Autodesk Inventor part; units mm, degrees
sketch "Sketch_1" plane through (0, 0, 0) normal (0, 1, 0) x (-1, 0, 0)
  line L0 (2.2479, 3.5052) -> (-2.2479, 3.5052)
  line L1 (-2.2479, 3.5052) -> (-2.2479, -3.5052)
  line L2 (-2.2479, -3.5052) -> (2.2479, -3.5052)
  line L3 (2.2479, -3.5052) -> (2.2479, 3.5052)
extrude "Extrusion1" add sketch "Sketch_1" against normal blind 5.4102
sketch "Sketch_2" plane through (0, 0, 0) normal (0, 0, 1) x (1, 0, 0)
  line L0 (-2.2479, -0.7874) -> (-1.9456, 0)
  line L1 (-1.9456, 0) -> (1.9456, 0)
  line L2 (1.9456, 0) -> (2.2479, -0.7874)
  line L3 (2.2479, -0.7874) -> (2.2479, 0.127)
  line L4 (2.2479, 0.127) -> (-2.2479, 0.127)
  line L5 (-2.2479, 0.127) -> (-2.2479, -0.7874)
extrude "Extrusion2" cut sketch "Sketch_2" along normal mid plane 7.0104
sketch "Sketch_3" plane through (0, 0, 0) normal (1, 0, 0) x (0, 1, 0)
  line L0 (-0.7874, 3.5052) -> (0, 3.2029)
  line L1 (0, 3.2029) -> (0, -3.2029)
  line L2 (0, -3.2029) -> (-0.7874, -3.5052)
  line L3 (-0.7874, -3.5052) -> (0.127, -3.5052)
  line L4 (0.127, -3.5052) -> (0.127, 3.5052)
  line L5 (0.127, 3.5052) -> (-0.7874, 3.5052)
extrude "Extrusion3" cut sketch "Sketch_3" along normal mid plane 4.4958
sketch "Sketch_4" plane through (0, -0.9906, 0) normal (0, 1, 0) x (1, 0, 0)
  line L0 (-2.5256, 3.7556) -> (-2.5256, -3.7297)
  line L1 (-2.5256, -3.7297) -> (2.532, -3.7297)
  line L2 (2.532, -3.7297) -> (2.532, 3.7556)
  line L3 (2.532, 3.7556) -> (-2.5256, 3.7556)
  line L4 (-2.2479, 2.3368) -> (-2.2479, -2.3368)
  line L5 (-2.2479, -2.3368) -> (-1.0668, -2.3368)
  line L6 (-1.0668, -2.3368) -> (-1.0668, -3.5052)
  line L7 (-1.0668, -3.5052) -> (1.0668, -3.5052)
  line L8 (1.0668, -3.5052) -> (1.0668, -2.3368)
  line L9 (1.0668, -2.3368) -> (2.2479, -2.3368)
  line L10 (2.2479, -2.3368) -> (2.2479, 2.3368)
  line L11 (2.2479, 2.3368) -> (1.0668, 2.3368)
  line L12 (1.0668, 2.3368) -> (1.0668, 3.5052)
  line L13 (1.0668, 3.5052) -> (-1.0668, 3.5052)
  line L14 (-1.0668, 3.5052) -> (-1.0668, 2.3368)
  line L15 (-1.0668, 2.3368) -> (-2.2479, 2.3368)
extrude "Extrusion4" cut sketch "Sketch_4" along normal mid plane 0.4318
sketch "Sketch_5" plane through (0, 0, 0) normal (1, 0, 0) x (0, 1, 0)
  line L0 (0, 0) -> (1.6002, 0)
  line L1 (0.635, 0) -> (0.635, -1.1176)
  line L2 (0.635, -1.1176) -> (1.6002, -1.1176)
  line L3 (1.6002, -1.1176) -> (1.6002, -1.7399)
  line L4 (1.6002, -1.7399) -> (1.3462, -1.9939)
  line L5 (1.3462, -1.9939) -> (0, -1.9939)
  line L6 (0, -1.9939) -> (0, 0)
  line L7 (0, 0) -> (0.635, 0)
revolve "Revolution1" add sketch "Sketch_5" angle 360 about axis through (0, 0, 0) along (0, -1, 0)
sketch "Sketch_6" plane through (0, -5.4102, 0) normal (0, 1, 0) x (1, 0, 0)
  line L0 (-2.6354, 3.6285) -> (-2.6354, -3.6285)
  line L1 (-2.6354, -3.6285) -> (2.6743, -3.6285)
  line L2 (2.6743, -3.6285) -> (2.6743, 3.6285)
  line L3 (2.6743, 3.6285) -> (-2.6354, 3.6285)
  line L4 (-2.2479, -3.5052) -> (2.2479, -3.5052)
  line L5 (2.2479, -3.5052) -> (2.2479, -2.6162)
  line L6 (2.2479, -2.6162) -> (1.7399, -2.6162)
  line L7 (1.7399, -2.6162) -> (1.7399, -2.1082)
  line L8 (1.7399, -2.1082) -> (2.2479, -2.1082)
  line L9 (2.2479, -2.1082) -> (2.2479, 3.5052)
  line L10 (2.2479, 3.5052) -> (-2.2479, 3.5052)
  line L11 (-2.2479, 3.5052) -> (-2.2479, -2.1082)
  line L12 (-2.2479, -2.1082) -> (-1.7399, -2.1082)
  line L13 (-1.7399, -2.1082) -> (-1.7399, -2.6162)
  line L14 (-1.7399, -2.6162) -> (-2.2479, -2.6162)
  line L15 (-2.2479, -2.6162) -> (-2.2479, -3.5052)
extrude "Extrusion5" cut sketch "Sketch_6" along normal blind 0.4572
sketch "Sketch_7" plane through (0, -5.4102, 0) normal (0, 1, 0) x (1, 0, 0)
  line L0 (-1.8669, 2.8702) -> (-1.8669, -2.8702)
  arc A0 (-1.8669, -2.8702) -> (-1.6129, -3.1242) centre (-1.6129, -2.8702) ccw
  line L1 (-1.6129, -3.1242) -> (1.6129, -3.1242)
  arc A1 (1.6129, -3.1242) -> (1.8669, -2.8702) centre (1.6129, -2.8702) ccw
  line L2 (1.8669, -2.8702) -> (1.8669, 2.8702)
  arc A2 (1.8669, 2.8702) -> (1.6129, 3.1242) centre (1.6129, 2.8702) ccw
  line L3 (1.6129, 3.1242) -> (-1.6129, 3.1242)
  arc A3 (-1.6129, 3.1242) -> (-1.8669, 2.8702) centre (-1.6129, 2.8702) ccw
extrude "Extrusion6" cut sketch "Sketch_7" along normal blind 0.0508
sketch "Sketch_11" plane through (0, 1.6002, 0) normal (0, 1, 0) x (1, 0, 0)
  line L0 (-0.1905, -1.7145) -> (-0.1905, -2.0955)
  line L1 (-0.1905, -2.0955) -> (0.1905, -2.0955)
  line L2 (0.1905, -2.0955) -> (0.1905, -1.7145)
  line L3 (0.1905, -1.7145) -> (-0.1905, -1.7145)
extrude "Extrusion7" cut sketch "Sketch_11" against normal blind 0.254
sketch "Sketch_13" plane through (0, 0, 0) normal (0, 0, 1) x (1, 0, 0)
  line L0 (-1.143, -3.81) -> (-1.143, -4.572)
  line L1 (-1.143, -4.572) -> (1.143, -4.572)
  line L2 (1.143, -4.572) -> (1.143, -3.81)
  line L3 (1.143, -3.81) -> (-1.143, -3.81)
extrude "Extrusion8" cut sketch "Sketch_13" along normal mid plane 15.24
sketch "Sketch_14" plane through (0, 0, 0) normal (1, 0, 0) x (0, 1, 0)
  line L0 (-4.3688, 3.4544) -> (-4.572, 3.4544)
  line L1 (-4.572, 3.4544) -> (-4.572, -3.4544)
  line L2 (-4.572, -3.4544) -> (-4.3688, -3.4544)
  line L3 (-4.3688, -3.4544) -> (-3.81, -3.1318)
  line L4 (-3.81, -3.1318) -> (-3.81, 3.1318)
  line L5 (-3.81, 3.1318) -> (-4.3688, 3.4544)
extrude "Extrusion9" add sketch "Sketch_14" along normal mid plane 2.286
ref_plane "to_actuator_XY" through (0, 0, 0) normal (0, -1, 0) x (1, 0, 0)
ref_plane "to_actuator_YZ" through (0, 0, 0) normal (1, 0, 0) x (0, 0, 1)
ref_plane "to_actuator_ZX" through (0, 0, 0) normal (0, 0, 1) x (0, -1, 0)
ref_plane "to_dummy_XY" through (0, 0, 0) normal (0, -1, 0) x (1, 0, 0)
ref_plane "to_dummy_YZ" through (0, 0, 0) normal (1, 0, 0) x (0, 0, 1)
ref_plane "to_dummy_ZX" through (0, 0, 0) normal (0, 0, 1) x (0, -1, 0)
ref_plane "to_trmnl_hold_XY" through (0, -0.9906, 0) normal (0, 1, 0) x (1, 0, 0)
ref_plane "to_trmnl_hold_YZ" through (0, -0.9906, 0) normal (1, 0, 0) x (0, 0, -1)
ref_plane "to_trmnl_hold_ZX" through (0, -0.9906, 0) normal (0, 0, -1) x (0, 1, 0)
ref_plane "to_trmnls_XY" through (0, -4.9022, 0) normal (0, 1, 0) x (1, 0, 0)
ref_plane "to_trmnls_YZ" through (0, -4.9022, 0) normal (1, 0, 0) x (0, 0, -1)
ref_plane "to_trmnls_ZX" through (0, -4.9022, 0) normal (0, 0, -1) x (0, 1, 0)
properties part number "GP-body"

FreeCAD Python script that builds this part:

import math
import FreeCAD as App
import Part
import Sketcher

V = App.Vector
Q = App.Units.Quantity

doc = App.newDocument("Part")
body = doc.addObject("PartDesign::Body", "Body")

sketch1 = body.newObject("Sketcher::SketchObject", "Sketch")
sketch1.AttachmentSupport = (doc.getObject("XZ_Plane"), [""])
sketch1.MapMode = "FlatFace"
sketch1.addGeometry([
    Part.LineSegment(V(-2.2, -3.5, 0), V(-2.2, 3.5, 0)),
    Part.LineSegment(V(-2.2, 3.5, 0), V(2.2, 3.5, 0)),
    Part.LineSegment(V(2.2, 3.5, 0), V(2.2, -3.5, 0)),
    Part.LineSegment(V(2.2, -3.5, 0), V(-2.2, -3.5, 0)),
], False)
sketch1.addConstraint([
    Sketcher.Constraint("Coincident", 0, 2, 1, 1),
    Sketcher.Constraint("Coincident", 1, 2, 2, 1),
    Sketcher.Constraint("Coincident", 2, 2, 3, 1),
    Sketcher.Constraint("Coincident", 3, 2, 0, 1),
    Sketcher.Constraint("Vertical", 0),
    Sketcher.Constraint("Horizontal", 1),
    Sketcher.Constraint("Vertical", 2),
    Sketcher.Constraint("Horizontal", 3),
    Sketcher.Constraint("Symmetric", 0, 2, 2, 2, -1, 1),
    Sketcher.Constraint("DistanceX", 1, 1, 1, 2, Q("0.177 in")),
    Sketcher.Constraint("DistanceY", 0, 1, 0, 2, Q("0.276 in")),
])
pad1 = body.newObject("PartDesign::Pad", "Pad")
pad1.Profile = sketch1
pad1.Length = Q("0.213 in")

sketch2 = body.newObject("Sketcher::SketchObject", "Sketch001")
sketch2.AttachmentSupport = (doc.getObject("XY_Plane"), [""])
sketch2.MapMode = "FlatFace"
sketch2.addGeometry([
    Part.LineSegment(V(-2.2, 0.1, 0), V(-2.2, -0.8, 0)),
    Part.LineSegment(V(-2.2, -0.8, 0), V(-1.9, 0, 0)),
    Part.LineSegment(V(-1.9, 0, 0), V(1.9, 0, 0)),
    Part.LineSegment(V(1.9, 0, 0), V(2.2, -0.8, 0)),
    Part.LineSegment(V(2.2, -0.8, 0), V(2.2, 0.1, 0)),
    Part.LineSegment(V(2.2, 0.1, 0), V(-2.2, 0.1, 0)),
], False)
sketch2.addConstraint([
    Sketcher.Constraint("Coincident", 0, 2, 1, 1),
    Sketcher.Constraint("Coincident", 1, 2, 2, 1),
    Sketcher.Constraint("Coincident", 2, 2, 3, 1),
    Sketcher.Constraint("Coincident", 3, 2, 4, 1),
    Sketcher.Constraint("Coincident", 4, 2, 5, 1),
    Sketcher.Constraint("Coincident", 5, 2, 0, 1),
    Sketcher.Constraint("Vertical", 0),
    Sketcher.Constraint("Horizontal", 2),
    Sketcher.Constraint("Vertical", 4),
    Sketcher.Constraint("Horizontal", 5),
    Sketcher.Constraint("Symmetric", 1, 2, 2, 2, -1, 1),
    Sketcher.Constraint("Symmetric", 0, 2, 3, 2, -2),
    Sketcher.Constraint("DistanceX", 5, 2, 5, 1, Q("0.177 in")),
    Sketcher.Constraint("DistanceY", 0, 2, 0, 1, Q("0.036 in")),
    Sketcher.Constraint("DistanceX", 2, 1, 2, 2, Q("0.1532 in")),
    Sketcher.Constraint("DistanceY", 0, 2, -1, 1, Q("0.031 in")),
])
pocket1 = body.newObject("PartDesign::Pocket", "Pocket")
pocket1.Profile = sketch2
pocket1.Length = Q("0.276 in")
pocket1.Midplane = True

sketch3 = body.newObject("Sketcher::SketchObject", "Sketch002")
sketch3.AttachmentSupport = (doc.getObject("YZ_Plane"), [""])
sketch3.MapMode = "FlatFace"
sketch3.addGeometry([
    Part.LineSegment(V(0.1, 3.5, 0), V(-0.8, 3.5, 0)),
    Part.LineSegment(V(-0.8, 3.5, 0), V(0, 3.2, 0)),
    Part.LineSegment(V(0, 3.2, 0), V(0, -3.2, 0)),
    Part.LineSegment(V(0, -3.2, 0), V(-0.8, -3.5, 0)),
    Part.LineSegment(V(-0.8, -3.5, 0), V(0.1, -3.5, 0)),
    Part.LineSegment(V(0.1, -3.5, 0), V(0.1, 3.5, 0)),
], False)
sketch3.addConstraint([
    Sketcher.Constraint("Coincident", 0, 2, 1, 1),
    Sketcher.Constraint("Coincident", 1, 2, 2, 1),
    Sketcher.Constraint("Coincident", 2, 2, 3, 1),
    Sketcher.Constraint("Coincident", 3, 2, 4, 1),
    Sketcher.Constraint("Coincident", 4, 2, 5, 1),
    Sketcher.Constraint("Coincident", 5, 2, 0, 1),
    Sketcher.Constraint("Horizontal", 0),
    Sketcher.Constraint("Vertical", 2),
    Sketcher.Constraint("Horizontal", 4),
    Sketcher.Constraint("Vertical", 5),
    Sketcher.Constraint("Symmetric", 1, 2, 2, 2, -1, 1),
    Sketcher.Constraint("Symmetric", 0, 2, 3, 2, -1),
    Sketcher.Constraint("DistanceX", 0, 2, 0, 1, Q("0.036 in")),
    Sketcher.Constraint("DistanceY", 5, 1, 5, 2, Q("0.276 in")),
    Sketcher.Constraint("DistanceY", 2, 2, 2, 1, Q("0.2522 in")),
    Sketcher.Constraint("DistanceX", 0, 2, -1, 1, Q("0.031 in")),
])
pocket2 = body.newObject("PartDesign::Pocket", "Pocket001")
pocket2.Profile = sketch3
pocket2.Length = Q("0.177 in")
pocket2.Midplane = True

sketch4 = body.newObject("Sketcher::SketchObject", "Sketch003")
sketch4.AttachmentSupport = (doc.getObject("XZ_Plane"), [""])
sketch4.MapMode = "FlatFace"
sketch4.AttachmentOffset = App.Placement(V(0, 0, 0.039 * 25.4), App.Rotation())
sketch4.addGeometry([
    Part.LineSegment(V(2.5, -3.8, 0), V(-2.5, -3.8, 0)),
    Part.LineSegment(V(-2.5, -3.8, 0), V(-2.5, 3.7, 0)),
    Part.LineSegment(V(-2.5, 3.7, 0), V(2.5, 3.7, 0)),
    Part.LineSegment(V(2.5, 3.7, 0), V(2.5, -3.8, 0)),
    Part.LineSegment(V(-2.2, 2.3, 0), V(-2.2, -2.3, 0)),
    Part.LineSegment(V(-2.2, -2.3, 0), V(-1.1, -2.3, 0)),
    Part.LineSegment(V(-1.1, -2.3, 0), V(-1.1, -3.5, 0)),
    Part.LineSegment(V(-1.1, -3.5, 0), V(1.1, -3.5, 0)),
    Part.LineSegment(V(1.1, -3.5, 0), V(1.1, -2.3, 0)),
    Part.LineSegment(V(1.1, -2.3, 0), V(2.2, -2.3, 0)),
    Part.LineSegment(V(2.2, -2.3, 0), V(2.2, 2.3, 0)),
    Part.LineSegment(V(2.2, 2.3, 0), V(1.1, 2.3, 0)),
    Part.LineSegment(V(1.1, 2.3, 0), V(1.1, 3.5, 0)),
    Part.LineSegment(V(1.1, 3.5, 0), V(-1.1, 3.5, 0)),
    Part.LineSegment(V(-1.1, 3.5, 0), V(-1.1, 2.3, 0)),
    Part.LineSegment(V(-1.1, 2.3, 0), V(-2.2, 2.3, 0)),
], False)
sketch4.addConstraint([
    Sketcher.Constraint("Coincident", 0, 2, 1, 1),
    Sketcher.Constraint("Coincident", 1, 2, 2, 1),
    Sketcher.Constraint("Coincident", 2, 2, 3, 1),
    Sketcher.Constraint("Coincident", 3, 2, 0, 1),
    Sketcher.Constraint("Coincident", 4, 2, 5, 1),
    Sketcher.Constraint("Coincident", 5, 2, 6, 1),
    Sketcher.Constraint("Coincident", 6, 2, 7, 1),
    Sketcher.Constraint("Coincident", 7, 2, 8, 1),
    Sketcher.Constraint("Coincident", 8, 2, 9, 1),
    Sketcher.Constraint("Coincident", 9, 2, 10, 1),
    Sketcher.Constraint("Coincident", 10, 2, 11, 1),
    Sketcher.Constraint("Coincident", 11, 2, 12, 1),
    Sketcher.Constraint("Coincident", 12, 2, 13, 1),
    Sketcher.Constraint("Coincident", 13, 2, 14, 1),
    Sketcher.Constraint("Coincident", 14, 2, 15, 1),
    Sketcher.Constraint("Coincident", 15, 2, 4, 1),
    Sketcher.Constraint("Horizontal", 0),
    Sketcher.Constraint("Vertical", 1),
    Sketcher.Constraint("Horizontal", 2),
    Sketcher.Constraint("Vertical", 3),
    Sketcher.Constraint("Vertical", 4),
    Sketcher.Constraint("Horizontal", 5),
    Sketcher.Constraint("Vertical", 6),
    Sketcher.Constraint("Horizontal", 7),
    Sketcher.Constraint("Vertical", 8),
    Sketcher.Constraint("Horizontal", 9),
    Sketcher.Constraint("Vertical", 10),
    Sketcher.Constraint("Horizontal", 11),
    Sketcher.Constraint("Vertical", 12),
    Sketcher.Constraint("Horizontal", 13),
    Sketcher.Constraint("Vertical", 14),
    Sketcher.Constraint("Horizontal", 15),
    Sketcher.Constraint("Symmetric", 4, 2, 10, 2, -1, 1),
    Sketcher.Constraint("Symmetric", 6, 2, 12, 2, -1, 1),
    Sketcher.Constraint("Symmetric", 8, 2, 14, 2, -1, 1),
    Sketcher.Constraint("Symmetric", 5, 2, 8, 2, -2),
    Sketcher.Constraint("DistanceX", 7, 1, 7, 2, Q("0.084 in")),
    Sketcher.Constraint("DistanceY", 4, 2, 4, 1, Q("0.184 in")),
    Sketcher.Constraint("DistanceY", 6, 2, 6, 1, Q("0.046 in")),
    Sketcher.Constraint("DistanceX", 5, 1, 5, 2, Q("0.0465 in")),
    Sketcher.Constraint("DistanceY", 1, 1, 1, 2, Q("0.2947 in")),
    Sketcher.Constraint("DistanceX", 0, 2, 0, 1, 5.0576),
    Sketcher.Constraint("DistanceX", 0, 2, -1, 1, 2.5256),
    Sketcher.Constraint("DistanceY", 0, 2, -1, 1, 3.7556),
])
pocket3 = body.newObject("PartDesign::Pocket", "Pocket002")
pocket3.Profile = sketch4
pocket3.Length = Q("0.017 in")
pocket3.Midplane = True

sketch5 = body.newObject("Sketcher::SketchObject", "Sketch004")
sketch5.AttachmentSupport = (doc.getObject("YZ_Plane"), [""])
sketch5.MapMode = "FlatFace"
sketch5.addGeometry([
    Part.LineSegment(V(0.64, 0, 0), V(0, 0, 0)),
    Part.LineSegment(V(0, 0, 0), V(0, -1.99, 0)),
    Part.LineSegment(V(0, -1.99, 0), V(1.35, -1.99, 0)),
    Part.LineSegment(V(1.35, -1.99, 0), V(1.6, -1.74, 0)),
    Part.LineSegment(V(1.6, -1.74, 0), V(1.6, -1.12, 0)),
    Part.LineSegment(V(1.6, -1.12, 0), V(0.64, -1.12, 0)),
    Part.LineSegment(V(0.64, -1.12, 0), V(0.64, 0, 0)),
], False)
sketch5.addConstraint([
    Sketcher.Constraint("Coincident", 0, 2, 1, 1),
    Sketcher.Constraint("Coincident", 1, 2, 2, 1),
    Sketcher.Constraint("Coincident", 2, 2, 3, 1),
    Sketcher.Constraint("Coincident", 3, 2, 4, 1),
    Sketcher.Constraint("Coincident", 4, 2, 5, 1),
    Sketcher.Constraint("Coincident", 5, 2, 6, 1),
    Sketcher.Constraint("Coincident", 6, 2, 0, 1),
    Sketcher.Constraint("Horizontal", 0),
    Sketcher.Constraint("Vertical", 1),
    Sketcher.Constraint("Horizontal", 2),
    Sketcher.Constraint("Vertical", 4),
    Sketcher.Constraint("Horizontal", 5),
    Sketcher.Constraint("Vertical", 6),
    Sketcher.Constraint("Coincident", 0, 2, -1, 1),
    Sketcher.Constraint("Angle", 3, Q("45 deg")),
    Sketcher.Constraint("DistanceX", 0, 2, 0, 1, Q("0.025 in")),
    Sketcher.Constraint("DistanceX", 2, 1, 2, 2, Q("0.053 in")),
    Sketcher.Constraint("DistanceX", 5, 2, 5, 1, Q("0.038 in")),
    Sketcher.Constraint("DistanceY", 6, 1, 6, 2, Q("0.044 in")),
    Sketcher.Constraint("DistanceY", 1, 2, 1, 1, Q("0.0785 in")),
])
revolution = body.newObject("PartDesign::Revolution", "Revolution")
revolution.Profile = sketch5
revolution.ReferenceAxis = (sketch5, ["H_Axis"])
revolution.Angle = 360

sketch6 = body.newObject("Sketcher::SketchObject", "Sketch005")
sketch6.AttachmentSupport = (doc.getObject("XZ_Plane"), [""])
sketch6.MapMode = "FlatFace"
sketch6.AttachmentOffset = App.Placement(V(0, 0, 0.213 * 25.4), App.Rotation())
sketch6.addGeometry([
    Part.LineSegment(V(2.7, -3.6, 0), V(-2.6, -3.6, 0)),
    Part.LineSegment(V(-2.6, -3.6, 0), V(-2.6, 3.6, 0)),
    Part.LineSegment(V(-2.6, 3.6, 0), V(2.7, 3.6, 0)),
    Part.LineSegment(V(2.7, 3.6, 0), V(2.7, -3.6, 0)),
    Part.LineSegment(V(2.2, 3.5, 0), V(-2.2, 3.5, 0)),
    Part.LineSegment(V(-2.2, 3.5, 0), V(-2.2, 2.6, 0)),
    Part.LineSegment(V(-2.2, 2.6, 0), V(-1.7, 2.6, 0)),
    Part.LineSegment(V(-1.7, 2.6, 0), V(-1.7, 2.1, 0)),
    Part.LineSegment(V(-1.7, 2.1, 0), V(-2.2, 2.1, 0)),
    Part.LineSegment(V(-2.2, 2.1, 0), V(-2.2, -3.5, 0)),
    Part.LineSegment(V(-2.2, -3.5, 0), V(2.2, -3.5, 0)),
    Part.LineSegment(V(2.2, -3.5, 0), V(2.2, 2.1, 0)),
    Part.LineSegment(V(2.2, 2.1, 0), V(1.7, 2.1, 0)),
    Part.LineSegment(V(1.7, 2.1, 0), V(1.7, 2.6, 0)),
    Part.LineSegment(V(1.7, 2.6, 0), V(2.2, 2.6, 0)),
    Part.LineSegment(V(2.2, 2.6, 0), V(2.2, 3.5, 0)),
], False)
sketch6.addConstraint([
    Sketcher.Constraint("Coincident", 0, 2, 1, 1),
    Sketcher.Constraint("Coincident", 1, 2, 2, 1),
    Sketcher.Constraint("Coincident", 2, 2, 3, 1),
    Sketcher.Constraint("Coincident", 3, 2, 0, 1),
    Sketcher.Constraint("Coincident", 4, 2, 5, 1),
    Sketcher.Constraint("Coincident", 5, 2, 6, 1),
    Sketcher.Constraint("Coincident", 6, 2, 7, 1),
    Sketcher.Constraint("Coincident", 7, 2, 8, 1),
    Sketcher.Constraint("Coincident", 8, 2, 9, 1),
    Sketcher.Constraint("Coincident", 9, 2, 10, 1),
    Sketcher.Constraint("Coincident", 10, 2, 11, 1),
    Sketcher.Constraint("Coincident", 11, 2, 12, 1),
    Sketcher.Constraint("Coincident", 12, 2, 13, 1),
    Sketcher.Constraint("Coincident", 13, 2, 14, 1),
    Sketcher.Constraint("Coincident", 14, 2, 15, 1),
    Sketcher.Constraint("Coincident", 15, 2, 4, 1),
    Sketcher.Constraint("Horizontal", 0),
    Sketcher.Constraint("Vertical", 1),
    Sketcher.Constraint("Horizontal", 2),
    Sketcher.Constraint("Vertical", 3),
    Sketcher.Constraint("Horizontal", 4),
    Sketcher.Constraint("Vertical", 5),
    Sketcher.Constraint("Horizontal", 6),
    Sketcher.Constraint("Vertical", 7),
    Sketcher.Constraint("Horizontal", 8),
    Sketcher.Constraint("Vertical", 9),
    Sketcher.Constraint("Horizontal", 10),
    Sketcher.Constraint("Vertical", 11),
    Sketcher.Constraint("Horizontal", 12),
    Sketcher.Constraint("Vertical", 13),
    Sketcher.Constraint("Horizontal", 14),
    Sketcher.Constraint("Vertical", 15),
    Sketcher.Constraint("Symmetric", 4, 2, 10, 2, -1, 1),
    Sketcher.Constraint("Symmetric", 8, 2, 11, 2, -2),
    Sketcher.Constraint("Symmetric", 6, 2, 13, 2, -2),
    Sketcher.Constraint("Vertical", 11, 2, 14, 2),
    Sketcher.Constraint("Equal", 14, 7),
    Sketcher.Constraint("DistanceX", 6, 1, 6, 2, Q("0.02 in")),
    Sketcher.Constraint("DistanceX", 4, 2, 4, 1, Q("0.177 in")),
    Sketcher.Constraint("DistanceY", 5, 2, 5, 1, Q("0.035 in")),
    Sketcher.Constraint("DistanceY", 9, 2, 9, 1, Q("0.221 in")),
    Sketcher.Constraint("DistanceY", 1, 1, 1, 2, Q("0.2857 in")),
    Sketcher.Constraint("DistanceX", 0, 2, 0, 1, 5.3097),
    Sketcher.Constraint("DistanceX", 0, 2, -1, 1, 2.6354),
    Sketcher.Constraint("DistanceY", 0, 2, -1, 1, 3.6285),
])
pocket4 = body.newObject("PartDesign::Pocket", "Pocket003")
pocket4.Profile = sketch6
pocket4.Length = Q("0.018 in")

sketch7 = body.newObject("Sketcher::SketchObject", "Sketch006")
sketch7.AttachmentSupport = (doc.getObject("XZ_Plane"), [""])
sketch7.MapMode = "FlatFace"
sketch7.AttachmentOffset = App.Placement(V(0, 0, 0.213 * 25.4), App.Rotation())
sketch7.addGeometry([
    Part.ArcOfCircle(Part.Circle(V(-1.61, -2.87, 0), V(0, 0, 1), 0.25), math.radians(180), math.radians(270)),
    Part.LineSegment(V(-1.87, -2.87, 0), V(-1.87, 2.87, 0)),
    Part.ArcOfCircle(Part.Circle(V(-1.61, 2.87, 0), V(0, 0, 1), 0.25), math.radians(90), math.radians(180)),
    Part.LineSegment(V(-1.61, 3.12, 0), V(1.61, 3.12, 0)),
    Part.ArcOfCircle(Part.Circle(V(1.61, 2.87, 0), V(0, 0, 1), 0.25), math.radians(0), math.radians(90)),
    Part.LineSegment(V(1.87, 2.87, 0), V(1.87, -2.87, 0)),
    Part.ArcOfCircle(Part.Circle(V(1.61, -2.87, 0), V(0, 0, 1), 0.25), math.radians(-90), math.radians(0)),
    Part.LineSegment(V(1.61, -3.12, 0), V(-1.61, -3.12, 0)),
], False)
sketch7.addConstraint([
    Sketcher.Constraint("Tangent", 0, 1, 1, 1),
    Sketcher.Constraint("Tangent", 1, 2, 2, 2),
    Sketcher.Constraint("Tangent", 2, 1, 3, 1),
    Sketcher.Constraint("Tangent", 3, 2, 4, 2),
    Sketcher.Constraint("Tangent", 4, 1, 5, 1),
    Sketcher.Constraint("Tangent", 5, 2, 6, 2),
    Sketcher.Constraint("Tangent", 6, 1, 7, 1),
    Sketcher.Constraint("Tangent", 7, 2, 0, 2),
    Sketcher.Constraint("Vertical", 1),
    Sketcher.Constraint("Horizontal", 3),
    Sketcher.Constraint("Vertical", 5),
    Sketcher.Constraint("Horizontal", 7),
    Sketcher.Constraint("Equal", 0, 2),
    Sketcher.Constraint("Equal", 2, 4),
    Sketcher.Constraint("Equal", 4, 6),
    Sketcher.Constraint("Symmetric", 0, 3, 4, 3, -1, 1),
    Sketcher.Constraint("Radius", 0, Q("0.01 in")),
    Sketcher.Constraint("DistanceX", 3, 1, 3, 2, Q("0.127 in")),
    Sketcher.Constraint("DistanceY", 1, 1, 1, 2, Q("0.226 in")),
])
pocket5 = body.newObject("PartDesign::Pocket", "Pocket004")
pocket5.Profile = sketch7
pocket5.Length = Q("0.002 in")

sketch8 = body.newObject("Sketcher::SketchObject", "Sketch007")
sketch8.AttachmentSupport = (doc.getObject("XZ_Plane"), [""])
sketch8.MapMode = "FlatFace"
sketch8.AttachmentOffset = App.Placement(V(0, 0, -0.063 * 25.4), App.Rotation())
sketch8.addGeometry([
    Part.LineSegment(V(0.19, 1.71, 0), V(-0.19, 1.71, 0)),
    Part.LineSegment(V(-0.19, 1.71, 0), V(-0.19, 2.1, 0)),
    Part.LineSegment(V(-0.19, 2.1, 0), V(0.19, 2.1, 0)),
    Part.LineSegment(V(0.19, 2.1, 0), V(0.19, 1.71, 0)),
], False)
sketch8.addConstraint([
    Sketcher.Constraint("Coincident", 0, 2, 1, 1),
    Sketcher.Constraint("Coincident", 1, 2, 2, 1),
    Sketcher.Constraint("Coincident", 2, 2, 3, 1),
    Sketcher.Constraint("Coincident", 3, 2, 0, 1),
    Sketcher.Constraint("Horizontal", 0),
    Sketcher.Constraint("Vertical", 1),
    Sketcher.Constraint("Horizontal", 2),
    Sketcher.Constraint("Vertical", 3),
    Sketcher.Constraint("Equal", 2, 1),
    Sketcher.Constraint("DistanceX", 0, 2, 0, 1, Q("0.015 in")),
    Sketcher.Constraint("DistanceX", 0, 2, -1, 1, Q("0.0075 in")),
    Sketcher.Constraint("DistanceY", -1, 1, 0, 2, Q("0.0675 in")),
])
pocket6 = body.newObject("PartDesign::Pocket", "Pocket005")
pocket6.Profile = sketch8
pocket6.Length = Q("0.01 in")
pocket6.Reversed = True

sketch9 = body.newObject("Sketcher::SketchObject", "Sketch008")
sketch9.AttachmentSupport = (doc.getObject("XY_Plane"), [""])
sketch9.MapMode = "FlatFace"
sketch9.addGeometry([
    Part.LineSegment(V(1.1, -3.8, 0), V(-1.1, -3.8, 0)),
    Part.LineSegment(V(-1.1, -3.8, 0), V(-1.1, -4.6, 0)),
    Part.LineSegment(V(-1.1, -4.6, 0), V(1.1, -4.6, 0)),
    Part.LineSegment(V(1.1, -4.6, 0), V(1.1, -3.8, 0)),
], False)
sketch9.addConstraint([
    Sketcher.Constraint("Coincident", 0, 2, 1, 1),
    Sketcher.Constraint("Coincident", 1, 2, 2, 1),
    Sketcher.Constraint("Coincident", 2, 2, 3, 1),
    Sketcher.Constraint("Coincident", 3, 2, 0, 1),
    Sketcher.Constraint("Horizontal", 0),
    Sketcher.Constraint("Vertical", 1),
    Sketcher.Constraint("Horizontal", 2),
    Sketcher.Constraint("Vertical", 3),
    Sketcher.Constraint("DistanceX", 0, 2, 0, 1, Q("0.09 in")),
    Sketcher.Constraint("DistanceY", 1, 2, 1, 1, Q("0.03 in")),
    Sketcher.Constraint("DistanceY", 0, 2, -1, 1, Q("0.15 in")),
    Sketcher.Constraint("DistanceX", 0, 2, -1, 1, Q("0.045 in")),
])
pocket7 = body.newObject("PartDesign::Pocket", "Pocket006")
pocket7.Profile = sketch9
pocket7.Length = Q("0.6 in")
pocket7.Midplane = True

sketch10 = body.newObject("Sketcher::SketchObject", "Sketch009")
sketch10.AttachmentSupport = (doc.getObject("YZ_Plane"), [""])
sketch10.MapMode = "FlatFace"
sketch10.addGeometry([
    Part.LineSegment(V(-3.81, 3.13, 0), V(-4.37, 3.45, 0)),
    Part.LineSegment(V(-4.37, 3.45, 0), V(-4.57, 3.45, 0)),
    Part.LineSegment(V(-4.57, 3.45, 0), V(-4.57, -3.45, 0)),
    Part.LineSegment(V(-4.57, -3.45, 0), V(-4.37, -3.45, 0)),
    Part.LineSegment(V(-4.37, -3.45, 0), V(-3.81, -3.13, 0)),
    Part.LineSegment(V(-3.81, -3.13, 0), V(-3.81, 3.13, 0)),
], False)
sketch10.addConstraint([
    Sketcher.Constraint("Coincident", 0, 2, 1, 1),
    Sketcher.Constraint("Coincident", 1, 2, 2, 1),
    Sketcher.Constraint("Coincident", 2, 2, 3, 1),
    Sketcher.Constraint("Coincident", 3, 2, 4, 1),
    Sketcher.Constraint("Coincident", 4, 2, 5, 1),
    Sketcher.Constraint("Coincident", 5, 2, 0, 1),
    Sketcher.Constraint("Horizontal", 1),
    Sketcher.Constraint("Vertical", 2),
    Sketcher.Constraint("Horizontal", 3),
    Sketcher.Constraint("Vertical", 5),
    Sketcher.Constraint("Symmetric", 0, 2, 3, 2, -1),
    Sketcher.Constraint("Equal", 0, 4),
    Sketcher.Constraint("DistanceX", 1, 2, 1, 1, Q("0.008 in")),
    Sketcher.Constraint("DistanceY", 2, 2, 2, 1, Q("0.272 in")),
    Sketcher.Constraint("DistanceX", 1, 2, -1, 1, Q("0.18 in")),
    Sketcher.Constraint("DistanceX", 4, 2, -1, 1, Q("0.15 in")),
    Sketcher.Constraint("DistanceY", 5, 1, 5, 2, Q("0.2466 in")),
])
pad2 = body.newObject("PartDesign::Pad", "Pad001")
pad2.Profile = sketch10
pad2.Length = Q("0.09 in")
pad2.Midplane = True

doc.recompute()
